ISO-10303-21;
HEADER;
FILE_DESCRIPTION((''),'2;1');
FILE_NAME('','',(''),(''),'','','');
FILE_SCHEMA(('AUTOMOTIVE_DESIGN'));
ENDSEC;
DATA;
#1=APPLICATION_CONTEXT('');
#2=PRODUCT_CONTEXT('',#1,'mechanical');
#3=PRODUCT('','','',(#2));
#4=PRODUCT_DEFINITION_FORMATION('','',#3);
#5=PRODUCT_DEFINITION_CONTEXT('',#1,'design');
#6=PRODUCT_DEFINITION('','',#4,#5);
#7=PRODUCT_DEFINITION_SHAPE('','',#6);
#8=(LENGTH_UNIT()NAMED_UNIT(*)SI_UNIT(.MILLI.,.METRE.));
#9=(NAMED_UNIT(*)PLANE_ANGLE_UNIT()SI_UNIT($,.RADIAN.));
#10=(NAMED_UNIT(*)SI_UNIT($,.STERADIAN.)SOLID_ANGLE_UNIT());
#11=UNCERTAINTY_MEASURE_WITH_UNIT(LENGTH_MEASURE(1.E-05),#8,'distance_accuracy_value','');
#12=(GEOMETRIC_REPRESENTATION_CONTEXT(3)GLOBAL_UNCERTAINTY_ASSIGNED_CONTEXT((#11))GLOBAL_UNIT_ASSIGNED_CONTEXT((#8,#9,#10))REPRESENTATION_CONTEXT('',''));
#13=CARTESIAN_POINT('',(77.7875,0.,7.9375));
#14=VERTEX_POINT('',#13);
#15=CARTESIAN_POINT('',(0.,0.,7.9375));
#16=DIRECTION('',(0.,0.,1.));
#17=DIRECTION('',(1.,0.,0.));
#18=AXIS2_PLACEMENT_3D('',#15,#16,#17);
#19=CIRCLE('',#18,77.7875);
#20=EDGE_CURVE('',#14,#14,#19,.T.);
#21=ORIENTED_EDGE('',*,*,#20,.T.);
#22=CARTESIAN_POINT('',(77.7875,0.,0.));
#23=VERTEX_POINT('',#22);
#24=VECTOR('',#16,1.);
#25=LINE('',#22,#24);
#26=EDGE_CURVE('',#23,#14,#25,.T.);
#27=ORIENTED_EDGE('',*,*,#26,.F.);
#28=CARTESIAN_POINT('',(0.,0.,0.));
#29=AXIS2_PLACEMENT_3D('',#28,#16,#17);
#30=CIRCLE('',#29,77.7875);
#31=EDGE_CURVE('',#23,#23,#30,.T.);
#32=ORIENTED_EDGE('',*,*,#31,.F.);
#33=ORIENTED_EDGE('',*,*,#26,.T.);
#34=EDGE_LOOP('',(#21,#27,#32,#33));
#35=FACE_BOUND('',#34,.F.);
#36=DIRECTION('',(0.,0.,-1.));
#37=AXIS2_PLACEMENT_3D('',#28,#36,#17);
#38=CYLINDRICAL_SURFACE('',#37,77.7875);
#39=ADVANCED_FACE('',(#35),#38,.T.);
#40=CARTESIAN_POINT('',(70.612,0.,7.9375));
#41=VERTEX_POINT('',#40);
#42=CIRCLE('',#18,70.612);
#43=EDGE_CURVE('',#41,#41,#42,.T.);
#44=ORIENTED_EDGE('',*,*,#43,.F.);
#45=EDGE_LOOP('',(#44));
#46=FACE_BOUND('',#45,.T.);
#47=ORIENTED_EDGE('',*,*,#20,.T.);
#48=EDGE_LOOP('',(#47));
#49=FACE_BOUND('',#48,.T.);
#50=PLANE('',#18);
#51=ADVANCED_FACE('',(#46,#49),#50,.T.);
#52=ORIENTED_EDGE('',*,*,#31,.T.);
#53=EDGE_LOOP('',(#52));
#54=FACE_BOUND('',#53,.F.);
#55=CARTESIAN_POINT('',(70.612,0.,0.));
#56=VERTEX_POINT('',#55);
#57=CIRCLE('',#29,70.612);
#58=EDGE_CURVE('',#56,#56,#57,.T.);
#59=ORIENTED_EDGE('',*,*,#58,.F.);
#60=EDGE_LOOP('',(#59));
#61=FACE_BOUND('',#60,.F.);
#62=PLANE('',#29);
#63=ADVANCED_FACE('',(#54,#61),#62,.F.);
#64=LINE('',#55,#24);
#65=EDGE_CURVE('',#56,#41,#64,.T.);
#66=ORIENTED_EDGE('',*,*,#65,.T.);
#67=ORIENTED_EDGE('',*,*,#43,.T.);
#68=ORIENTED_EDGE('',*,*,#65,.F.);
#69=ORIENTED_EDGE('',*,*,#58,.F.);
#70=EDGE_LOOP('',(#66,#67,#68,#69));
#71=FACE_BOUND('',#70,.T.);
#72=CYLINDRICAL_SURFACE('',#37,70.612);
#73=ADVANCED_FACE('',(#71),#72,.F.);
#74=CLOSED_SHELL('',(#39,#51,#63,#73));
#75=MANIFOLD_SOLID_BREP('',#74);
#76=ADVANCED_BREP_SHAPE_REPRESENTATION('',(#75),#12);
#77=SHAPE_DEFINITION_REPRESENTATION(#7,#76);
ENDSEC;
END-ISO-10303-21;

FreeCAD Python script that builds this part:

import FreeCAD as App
import Part
import Sketcher
from FreeCAD import Vector
Q = App.Units.Quantity

doc = App.newDocument("Part")
body = doc.addObject("PartDesign::Body", "Body")

sketch1 = body.newObject("Sketcher::SketchObject", "Sketch")
sketch1.AttachmentSupport = (doc.getObject("XY_Plane"), [""])
sketch1.MapMode = "FlatFace"
sketch1.addGeometry(Part.Circle(Vector(0, 0, 0), Vector(0, 0, 1), 78), False)
sketch1.addGeometry(Part.Circle(Vector(0, 0, 0), Vector(0, 0, 1), 71), False)
sketch1.addConstraint(Sketcher.Constraint("Coincident", 0, 3, -1, 1))
sketch1.addConstraint(Sketcher.Constraint("Coincident", 1, 3, -1, 1))
sketch1.addConstraint(Sketcher.Constraint("Diameter", 1, Q("5.56 in")))
sketch1.addConstraint(Sketcher.Constraint("Diameter", 0, Q("6.125 in")))
pad1 = body.newObject("PartDesign::Pad", "Pad")
pad1.Profile = sketch1
pad1.Length = Q("0.3125 in")

doc.recompute()
